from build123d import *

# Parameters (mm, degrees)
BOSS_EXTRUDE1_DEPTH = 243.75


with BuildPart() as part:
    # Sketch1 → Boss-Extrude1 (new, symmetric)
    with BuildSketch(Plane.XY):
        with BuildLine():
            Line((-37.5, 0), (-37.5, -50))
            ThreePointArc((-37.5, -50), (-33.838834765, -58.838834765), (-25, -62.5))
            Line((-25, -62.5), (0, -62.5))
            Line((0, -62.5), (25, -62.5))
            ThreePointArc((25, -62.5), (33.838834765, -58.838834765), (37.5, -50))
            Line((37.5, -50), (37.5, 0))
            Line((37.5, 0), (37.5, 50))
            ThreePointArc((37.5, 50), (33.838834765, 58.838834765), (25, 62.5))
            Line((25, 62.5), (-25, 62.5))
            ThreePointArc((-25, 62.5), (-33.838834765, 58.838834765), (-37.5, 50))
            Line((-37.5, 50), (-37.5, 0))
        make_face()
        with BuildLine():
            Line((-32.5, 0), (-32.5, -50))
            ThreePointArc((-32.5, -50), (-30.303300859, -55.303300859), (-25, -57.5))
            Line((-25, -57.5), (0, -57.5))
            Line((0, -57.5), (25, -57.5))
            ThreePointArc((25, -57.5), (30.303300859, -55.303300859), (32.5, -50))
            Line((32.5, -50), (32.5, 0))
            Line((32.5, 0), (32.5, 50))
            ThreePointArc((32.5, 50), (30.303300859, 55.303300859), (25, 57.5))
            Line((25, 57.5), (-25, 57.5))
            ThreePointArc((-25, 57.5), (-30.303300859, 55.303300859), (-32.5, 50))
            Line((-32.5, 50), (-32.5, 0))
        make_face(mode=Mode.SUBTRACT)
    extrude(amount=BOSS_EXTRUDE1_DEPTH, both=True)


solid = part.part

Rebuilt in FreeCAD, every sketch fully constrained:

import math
import FreeCAD as App
import Part
import Sketcher
Q = App.Units.Quantity

doc = App.newDocument("Part")
params = doc.addObject("Spreadsheet::Sheet", "Params")
for row, (alias, value) in enumerate([
    ("sketch1_radius", "12.5 mm"),
    ("sketch1_radius2", "7.5 mm"),
    ("sketch1_width", "50 mm"),
    ("sketch1_height", "100 mm"),
    ("pad1_length", "487.5 mm"),
], start=1):
    params.set(f"A{row}", alias)
    params.set(f"B{row}", "=" + value)
    params.setAlias(f"B{row}", alias)

body = doc.addObject("PartDesign::Body", "Body")

# Sketch on XY plane
sketch1 = body.newObject("Sketcher::SketchObject", "Sketch")
sketch1.AttachmentSupport = (doc.getObject("XY_Plane"), [""])
sketch1.MapMode = "FlatFace"
sketch1.addGeometry([
    Part.ArcOfCircle(Part.Circle(App.Vector(-25, -50, 0), App.Vector(0, 0, 1), 12), math.radians(180), math.radians(270)),  # 0
    Part.LineSegment(App.Vector(-25, -62, 0), App.Vector(25, -62, 0)),  # 1
    Part.ArcOfCircle(Part.Circle(App.Vector(25, -50, 0), App.Vector(0, 0, 1), 12), math.radians(-90), math.radians(0)),  # 2
    Part.LineSegment(App.Vector(38, -50, 0), App.Vector(38, 50, 0)),  # 3
    Part.ArcOfCircle(Part.Circle(App.Vector(25, 50, 0), App.Vector(0, 0, 1), 12), math.radians(0), math.radians(90)),  # 4
    Part.LineSegment(App.Vector(25, 62, 0), App.Vector(-25, 62, 0)),  # 5
    Part.ArcOfCircle(Part.Circle(App.Vector(-25, 50, 0), App.Vector(0, 0, 1), 12), math.radians(90), math.radians(180)),  # 6
    Part.LineSegment(App.Vector(-38, 50, 0), App.Vector(-38, -50, 0)),  # 7
    Part.ArcOfCircle(Part.Circle(App.Vector(-25, -50, 0), App.Vector(0, 0, 1), 8), math.radians(180), math.radians(270)),  # 8
    Part.LineSegment(App.Vector(-32, -50, 0), App.Vector(-32, 50, 0)),  # 9
    Part.ArcOfCircle(Part.Circle(App.Vector(-25, 50, 0), App.Vector(0, 0, 1), 8), math.radians(90), math.radians(180)),  # 10
    Part.LineSegment(App.Vector(-25, 58, 0), App.Vector(25, 58, 0)),  # 11
    Part.ArcOfCircle(Part.Circle(App.Vector(25, 50, 0), App.Vector(0, 0, 1), 8), math.radians(0), math.radians(90)),  # 12
    Part.LineSegment(App.Vector(32, 50, 0), App.Vector(32, -50, 0)),  # 13
    Part.ArcOfCircle(Part.Circle(App.Vector(25, -50, 0), App.Vector(0, 0, 1), 8), math.radians(-90), math.radians(0)),  # 14
    Part.LineSegment(App.Vector(25, -58, 0), App.Vector(-25, -58, 0)),  # 15
], False)
sketch1.addConstraint([
    Sketcher.Constraint("Tangent", 0, 2, 1, 1),
    Sketcher.Constraint("Tangent", 1, 2, 2, 1),
    Sketcher.Constraint("Tangent", 2, 2, 3, 1),
    Sketcher.Constraint("Tangent", 3, 2, 4, 1),
    Sketcher.Constraint("Tangent", 4, 2, 5, 1),
    Sketcher.Constraint("Tangent", 5, 2, 6, 1),
    Sketcher.Constraint("Tangent", 6, 2, 7, 1),
    Sketcher.Constraint("Tangent", 7, 2, 0, 1),
    Sketcher.Constraint("Tangent", 8, 1, 9, 1),
    Sketcher.Constraint("Tangent", 9, 2, 10, 2),
    Sketcher.Constraint("Tangent", 10, 1, 11, 1),
    Sketcher.Constraint("Tangent", 11, 2, 12, 2),
    Sketcher.Constraint("Tangent", 12, 1, 13, 1),
    Sketcher.Constraint("Tangent", 13, 2, 14, 2),
    Sketcher.Constraint("Tangent", 14, 1, 15, 1),
    Sketcher.Constraint("Tangent", 15, 2, 8, 2),
    Sketcher.Constraint("Horizontal", 1),
    Sketcher.Constraint("Vertical", 3),
    Sketcher.Constraint("Horizontal", 5),
    Sketcher.Constraint("Vertical", 7),
    Sketcher.Constraint("Vertical", 9),
    Sketcher.Constraint("Horizontal", 11),
    Sketcher.Constraint("Vertical", 13),
    Sketcher.Constraint("Horizontal", 15),
    Sketcher.Constraint("Coincident", 8, 3, 0, 3),
    Sketcher.Constraint("Coincident", 10, 3, 6, 3),
    Sketcher.Constraint("Coincident", 12, 3, 4, 3),
    Sketcher.Constraint("Equal", 0, 2),
    Sketcher.Constraint("Equal", 2, 4),
    Sketcher.Constraint("Equal", 4, 6),
    Sketcher.Constraint("Equal", 12, 14),
    Sketcher.Constraint("Symmetric", 0, 3, 4, 3, -1, 1),
    Sketcher.Constraint("Radius", 0, Q("12.5 mm")),
    Sketcher.Constraint("Radius", 8, Q("7.5 mm")),
    Sketcher.Constraint("DistanceX", 1, 1, 1, 2, Q("50 mm")),
    Sketcher.Constraint("DistanceY", 3, 1, 3, 2, Q("100 mm")),
])
sketch1.setExpression("Constraints[32]", "Params.sketch1_radius")
sketch1.setExpression("Constraints[33]", "Params.sketch1_radius2")
sketch1.setExpression("Constraints[34]", "Params.sketch1_width")
sketch1.setExpression("Constraints[35]", "Params.sketch1_height")
pad1 = body.newObject("PartDesign::Pad", "Pad")
pad1.Profile = sketch1
pad1.setExpression("Length", "Params.pad1_length")
pad1.Midplane = True

doc.recompute()
